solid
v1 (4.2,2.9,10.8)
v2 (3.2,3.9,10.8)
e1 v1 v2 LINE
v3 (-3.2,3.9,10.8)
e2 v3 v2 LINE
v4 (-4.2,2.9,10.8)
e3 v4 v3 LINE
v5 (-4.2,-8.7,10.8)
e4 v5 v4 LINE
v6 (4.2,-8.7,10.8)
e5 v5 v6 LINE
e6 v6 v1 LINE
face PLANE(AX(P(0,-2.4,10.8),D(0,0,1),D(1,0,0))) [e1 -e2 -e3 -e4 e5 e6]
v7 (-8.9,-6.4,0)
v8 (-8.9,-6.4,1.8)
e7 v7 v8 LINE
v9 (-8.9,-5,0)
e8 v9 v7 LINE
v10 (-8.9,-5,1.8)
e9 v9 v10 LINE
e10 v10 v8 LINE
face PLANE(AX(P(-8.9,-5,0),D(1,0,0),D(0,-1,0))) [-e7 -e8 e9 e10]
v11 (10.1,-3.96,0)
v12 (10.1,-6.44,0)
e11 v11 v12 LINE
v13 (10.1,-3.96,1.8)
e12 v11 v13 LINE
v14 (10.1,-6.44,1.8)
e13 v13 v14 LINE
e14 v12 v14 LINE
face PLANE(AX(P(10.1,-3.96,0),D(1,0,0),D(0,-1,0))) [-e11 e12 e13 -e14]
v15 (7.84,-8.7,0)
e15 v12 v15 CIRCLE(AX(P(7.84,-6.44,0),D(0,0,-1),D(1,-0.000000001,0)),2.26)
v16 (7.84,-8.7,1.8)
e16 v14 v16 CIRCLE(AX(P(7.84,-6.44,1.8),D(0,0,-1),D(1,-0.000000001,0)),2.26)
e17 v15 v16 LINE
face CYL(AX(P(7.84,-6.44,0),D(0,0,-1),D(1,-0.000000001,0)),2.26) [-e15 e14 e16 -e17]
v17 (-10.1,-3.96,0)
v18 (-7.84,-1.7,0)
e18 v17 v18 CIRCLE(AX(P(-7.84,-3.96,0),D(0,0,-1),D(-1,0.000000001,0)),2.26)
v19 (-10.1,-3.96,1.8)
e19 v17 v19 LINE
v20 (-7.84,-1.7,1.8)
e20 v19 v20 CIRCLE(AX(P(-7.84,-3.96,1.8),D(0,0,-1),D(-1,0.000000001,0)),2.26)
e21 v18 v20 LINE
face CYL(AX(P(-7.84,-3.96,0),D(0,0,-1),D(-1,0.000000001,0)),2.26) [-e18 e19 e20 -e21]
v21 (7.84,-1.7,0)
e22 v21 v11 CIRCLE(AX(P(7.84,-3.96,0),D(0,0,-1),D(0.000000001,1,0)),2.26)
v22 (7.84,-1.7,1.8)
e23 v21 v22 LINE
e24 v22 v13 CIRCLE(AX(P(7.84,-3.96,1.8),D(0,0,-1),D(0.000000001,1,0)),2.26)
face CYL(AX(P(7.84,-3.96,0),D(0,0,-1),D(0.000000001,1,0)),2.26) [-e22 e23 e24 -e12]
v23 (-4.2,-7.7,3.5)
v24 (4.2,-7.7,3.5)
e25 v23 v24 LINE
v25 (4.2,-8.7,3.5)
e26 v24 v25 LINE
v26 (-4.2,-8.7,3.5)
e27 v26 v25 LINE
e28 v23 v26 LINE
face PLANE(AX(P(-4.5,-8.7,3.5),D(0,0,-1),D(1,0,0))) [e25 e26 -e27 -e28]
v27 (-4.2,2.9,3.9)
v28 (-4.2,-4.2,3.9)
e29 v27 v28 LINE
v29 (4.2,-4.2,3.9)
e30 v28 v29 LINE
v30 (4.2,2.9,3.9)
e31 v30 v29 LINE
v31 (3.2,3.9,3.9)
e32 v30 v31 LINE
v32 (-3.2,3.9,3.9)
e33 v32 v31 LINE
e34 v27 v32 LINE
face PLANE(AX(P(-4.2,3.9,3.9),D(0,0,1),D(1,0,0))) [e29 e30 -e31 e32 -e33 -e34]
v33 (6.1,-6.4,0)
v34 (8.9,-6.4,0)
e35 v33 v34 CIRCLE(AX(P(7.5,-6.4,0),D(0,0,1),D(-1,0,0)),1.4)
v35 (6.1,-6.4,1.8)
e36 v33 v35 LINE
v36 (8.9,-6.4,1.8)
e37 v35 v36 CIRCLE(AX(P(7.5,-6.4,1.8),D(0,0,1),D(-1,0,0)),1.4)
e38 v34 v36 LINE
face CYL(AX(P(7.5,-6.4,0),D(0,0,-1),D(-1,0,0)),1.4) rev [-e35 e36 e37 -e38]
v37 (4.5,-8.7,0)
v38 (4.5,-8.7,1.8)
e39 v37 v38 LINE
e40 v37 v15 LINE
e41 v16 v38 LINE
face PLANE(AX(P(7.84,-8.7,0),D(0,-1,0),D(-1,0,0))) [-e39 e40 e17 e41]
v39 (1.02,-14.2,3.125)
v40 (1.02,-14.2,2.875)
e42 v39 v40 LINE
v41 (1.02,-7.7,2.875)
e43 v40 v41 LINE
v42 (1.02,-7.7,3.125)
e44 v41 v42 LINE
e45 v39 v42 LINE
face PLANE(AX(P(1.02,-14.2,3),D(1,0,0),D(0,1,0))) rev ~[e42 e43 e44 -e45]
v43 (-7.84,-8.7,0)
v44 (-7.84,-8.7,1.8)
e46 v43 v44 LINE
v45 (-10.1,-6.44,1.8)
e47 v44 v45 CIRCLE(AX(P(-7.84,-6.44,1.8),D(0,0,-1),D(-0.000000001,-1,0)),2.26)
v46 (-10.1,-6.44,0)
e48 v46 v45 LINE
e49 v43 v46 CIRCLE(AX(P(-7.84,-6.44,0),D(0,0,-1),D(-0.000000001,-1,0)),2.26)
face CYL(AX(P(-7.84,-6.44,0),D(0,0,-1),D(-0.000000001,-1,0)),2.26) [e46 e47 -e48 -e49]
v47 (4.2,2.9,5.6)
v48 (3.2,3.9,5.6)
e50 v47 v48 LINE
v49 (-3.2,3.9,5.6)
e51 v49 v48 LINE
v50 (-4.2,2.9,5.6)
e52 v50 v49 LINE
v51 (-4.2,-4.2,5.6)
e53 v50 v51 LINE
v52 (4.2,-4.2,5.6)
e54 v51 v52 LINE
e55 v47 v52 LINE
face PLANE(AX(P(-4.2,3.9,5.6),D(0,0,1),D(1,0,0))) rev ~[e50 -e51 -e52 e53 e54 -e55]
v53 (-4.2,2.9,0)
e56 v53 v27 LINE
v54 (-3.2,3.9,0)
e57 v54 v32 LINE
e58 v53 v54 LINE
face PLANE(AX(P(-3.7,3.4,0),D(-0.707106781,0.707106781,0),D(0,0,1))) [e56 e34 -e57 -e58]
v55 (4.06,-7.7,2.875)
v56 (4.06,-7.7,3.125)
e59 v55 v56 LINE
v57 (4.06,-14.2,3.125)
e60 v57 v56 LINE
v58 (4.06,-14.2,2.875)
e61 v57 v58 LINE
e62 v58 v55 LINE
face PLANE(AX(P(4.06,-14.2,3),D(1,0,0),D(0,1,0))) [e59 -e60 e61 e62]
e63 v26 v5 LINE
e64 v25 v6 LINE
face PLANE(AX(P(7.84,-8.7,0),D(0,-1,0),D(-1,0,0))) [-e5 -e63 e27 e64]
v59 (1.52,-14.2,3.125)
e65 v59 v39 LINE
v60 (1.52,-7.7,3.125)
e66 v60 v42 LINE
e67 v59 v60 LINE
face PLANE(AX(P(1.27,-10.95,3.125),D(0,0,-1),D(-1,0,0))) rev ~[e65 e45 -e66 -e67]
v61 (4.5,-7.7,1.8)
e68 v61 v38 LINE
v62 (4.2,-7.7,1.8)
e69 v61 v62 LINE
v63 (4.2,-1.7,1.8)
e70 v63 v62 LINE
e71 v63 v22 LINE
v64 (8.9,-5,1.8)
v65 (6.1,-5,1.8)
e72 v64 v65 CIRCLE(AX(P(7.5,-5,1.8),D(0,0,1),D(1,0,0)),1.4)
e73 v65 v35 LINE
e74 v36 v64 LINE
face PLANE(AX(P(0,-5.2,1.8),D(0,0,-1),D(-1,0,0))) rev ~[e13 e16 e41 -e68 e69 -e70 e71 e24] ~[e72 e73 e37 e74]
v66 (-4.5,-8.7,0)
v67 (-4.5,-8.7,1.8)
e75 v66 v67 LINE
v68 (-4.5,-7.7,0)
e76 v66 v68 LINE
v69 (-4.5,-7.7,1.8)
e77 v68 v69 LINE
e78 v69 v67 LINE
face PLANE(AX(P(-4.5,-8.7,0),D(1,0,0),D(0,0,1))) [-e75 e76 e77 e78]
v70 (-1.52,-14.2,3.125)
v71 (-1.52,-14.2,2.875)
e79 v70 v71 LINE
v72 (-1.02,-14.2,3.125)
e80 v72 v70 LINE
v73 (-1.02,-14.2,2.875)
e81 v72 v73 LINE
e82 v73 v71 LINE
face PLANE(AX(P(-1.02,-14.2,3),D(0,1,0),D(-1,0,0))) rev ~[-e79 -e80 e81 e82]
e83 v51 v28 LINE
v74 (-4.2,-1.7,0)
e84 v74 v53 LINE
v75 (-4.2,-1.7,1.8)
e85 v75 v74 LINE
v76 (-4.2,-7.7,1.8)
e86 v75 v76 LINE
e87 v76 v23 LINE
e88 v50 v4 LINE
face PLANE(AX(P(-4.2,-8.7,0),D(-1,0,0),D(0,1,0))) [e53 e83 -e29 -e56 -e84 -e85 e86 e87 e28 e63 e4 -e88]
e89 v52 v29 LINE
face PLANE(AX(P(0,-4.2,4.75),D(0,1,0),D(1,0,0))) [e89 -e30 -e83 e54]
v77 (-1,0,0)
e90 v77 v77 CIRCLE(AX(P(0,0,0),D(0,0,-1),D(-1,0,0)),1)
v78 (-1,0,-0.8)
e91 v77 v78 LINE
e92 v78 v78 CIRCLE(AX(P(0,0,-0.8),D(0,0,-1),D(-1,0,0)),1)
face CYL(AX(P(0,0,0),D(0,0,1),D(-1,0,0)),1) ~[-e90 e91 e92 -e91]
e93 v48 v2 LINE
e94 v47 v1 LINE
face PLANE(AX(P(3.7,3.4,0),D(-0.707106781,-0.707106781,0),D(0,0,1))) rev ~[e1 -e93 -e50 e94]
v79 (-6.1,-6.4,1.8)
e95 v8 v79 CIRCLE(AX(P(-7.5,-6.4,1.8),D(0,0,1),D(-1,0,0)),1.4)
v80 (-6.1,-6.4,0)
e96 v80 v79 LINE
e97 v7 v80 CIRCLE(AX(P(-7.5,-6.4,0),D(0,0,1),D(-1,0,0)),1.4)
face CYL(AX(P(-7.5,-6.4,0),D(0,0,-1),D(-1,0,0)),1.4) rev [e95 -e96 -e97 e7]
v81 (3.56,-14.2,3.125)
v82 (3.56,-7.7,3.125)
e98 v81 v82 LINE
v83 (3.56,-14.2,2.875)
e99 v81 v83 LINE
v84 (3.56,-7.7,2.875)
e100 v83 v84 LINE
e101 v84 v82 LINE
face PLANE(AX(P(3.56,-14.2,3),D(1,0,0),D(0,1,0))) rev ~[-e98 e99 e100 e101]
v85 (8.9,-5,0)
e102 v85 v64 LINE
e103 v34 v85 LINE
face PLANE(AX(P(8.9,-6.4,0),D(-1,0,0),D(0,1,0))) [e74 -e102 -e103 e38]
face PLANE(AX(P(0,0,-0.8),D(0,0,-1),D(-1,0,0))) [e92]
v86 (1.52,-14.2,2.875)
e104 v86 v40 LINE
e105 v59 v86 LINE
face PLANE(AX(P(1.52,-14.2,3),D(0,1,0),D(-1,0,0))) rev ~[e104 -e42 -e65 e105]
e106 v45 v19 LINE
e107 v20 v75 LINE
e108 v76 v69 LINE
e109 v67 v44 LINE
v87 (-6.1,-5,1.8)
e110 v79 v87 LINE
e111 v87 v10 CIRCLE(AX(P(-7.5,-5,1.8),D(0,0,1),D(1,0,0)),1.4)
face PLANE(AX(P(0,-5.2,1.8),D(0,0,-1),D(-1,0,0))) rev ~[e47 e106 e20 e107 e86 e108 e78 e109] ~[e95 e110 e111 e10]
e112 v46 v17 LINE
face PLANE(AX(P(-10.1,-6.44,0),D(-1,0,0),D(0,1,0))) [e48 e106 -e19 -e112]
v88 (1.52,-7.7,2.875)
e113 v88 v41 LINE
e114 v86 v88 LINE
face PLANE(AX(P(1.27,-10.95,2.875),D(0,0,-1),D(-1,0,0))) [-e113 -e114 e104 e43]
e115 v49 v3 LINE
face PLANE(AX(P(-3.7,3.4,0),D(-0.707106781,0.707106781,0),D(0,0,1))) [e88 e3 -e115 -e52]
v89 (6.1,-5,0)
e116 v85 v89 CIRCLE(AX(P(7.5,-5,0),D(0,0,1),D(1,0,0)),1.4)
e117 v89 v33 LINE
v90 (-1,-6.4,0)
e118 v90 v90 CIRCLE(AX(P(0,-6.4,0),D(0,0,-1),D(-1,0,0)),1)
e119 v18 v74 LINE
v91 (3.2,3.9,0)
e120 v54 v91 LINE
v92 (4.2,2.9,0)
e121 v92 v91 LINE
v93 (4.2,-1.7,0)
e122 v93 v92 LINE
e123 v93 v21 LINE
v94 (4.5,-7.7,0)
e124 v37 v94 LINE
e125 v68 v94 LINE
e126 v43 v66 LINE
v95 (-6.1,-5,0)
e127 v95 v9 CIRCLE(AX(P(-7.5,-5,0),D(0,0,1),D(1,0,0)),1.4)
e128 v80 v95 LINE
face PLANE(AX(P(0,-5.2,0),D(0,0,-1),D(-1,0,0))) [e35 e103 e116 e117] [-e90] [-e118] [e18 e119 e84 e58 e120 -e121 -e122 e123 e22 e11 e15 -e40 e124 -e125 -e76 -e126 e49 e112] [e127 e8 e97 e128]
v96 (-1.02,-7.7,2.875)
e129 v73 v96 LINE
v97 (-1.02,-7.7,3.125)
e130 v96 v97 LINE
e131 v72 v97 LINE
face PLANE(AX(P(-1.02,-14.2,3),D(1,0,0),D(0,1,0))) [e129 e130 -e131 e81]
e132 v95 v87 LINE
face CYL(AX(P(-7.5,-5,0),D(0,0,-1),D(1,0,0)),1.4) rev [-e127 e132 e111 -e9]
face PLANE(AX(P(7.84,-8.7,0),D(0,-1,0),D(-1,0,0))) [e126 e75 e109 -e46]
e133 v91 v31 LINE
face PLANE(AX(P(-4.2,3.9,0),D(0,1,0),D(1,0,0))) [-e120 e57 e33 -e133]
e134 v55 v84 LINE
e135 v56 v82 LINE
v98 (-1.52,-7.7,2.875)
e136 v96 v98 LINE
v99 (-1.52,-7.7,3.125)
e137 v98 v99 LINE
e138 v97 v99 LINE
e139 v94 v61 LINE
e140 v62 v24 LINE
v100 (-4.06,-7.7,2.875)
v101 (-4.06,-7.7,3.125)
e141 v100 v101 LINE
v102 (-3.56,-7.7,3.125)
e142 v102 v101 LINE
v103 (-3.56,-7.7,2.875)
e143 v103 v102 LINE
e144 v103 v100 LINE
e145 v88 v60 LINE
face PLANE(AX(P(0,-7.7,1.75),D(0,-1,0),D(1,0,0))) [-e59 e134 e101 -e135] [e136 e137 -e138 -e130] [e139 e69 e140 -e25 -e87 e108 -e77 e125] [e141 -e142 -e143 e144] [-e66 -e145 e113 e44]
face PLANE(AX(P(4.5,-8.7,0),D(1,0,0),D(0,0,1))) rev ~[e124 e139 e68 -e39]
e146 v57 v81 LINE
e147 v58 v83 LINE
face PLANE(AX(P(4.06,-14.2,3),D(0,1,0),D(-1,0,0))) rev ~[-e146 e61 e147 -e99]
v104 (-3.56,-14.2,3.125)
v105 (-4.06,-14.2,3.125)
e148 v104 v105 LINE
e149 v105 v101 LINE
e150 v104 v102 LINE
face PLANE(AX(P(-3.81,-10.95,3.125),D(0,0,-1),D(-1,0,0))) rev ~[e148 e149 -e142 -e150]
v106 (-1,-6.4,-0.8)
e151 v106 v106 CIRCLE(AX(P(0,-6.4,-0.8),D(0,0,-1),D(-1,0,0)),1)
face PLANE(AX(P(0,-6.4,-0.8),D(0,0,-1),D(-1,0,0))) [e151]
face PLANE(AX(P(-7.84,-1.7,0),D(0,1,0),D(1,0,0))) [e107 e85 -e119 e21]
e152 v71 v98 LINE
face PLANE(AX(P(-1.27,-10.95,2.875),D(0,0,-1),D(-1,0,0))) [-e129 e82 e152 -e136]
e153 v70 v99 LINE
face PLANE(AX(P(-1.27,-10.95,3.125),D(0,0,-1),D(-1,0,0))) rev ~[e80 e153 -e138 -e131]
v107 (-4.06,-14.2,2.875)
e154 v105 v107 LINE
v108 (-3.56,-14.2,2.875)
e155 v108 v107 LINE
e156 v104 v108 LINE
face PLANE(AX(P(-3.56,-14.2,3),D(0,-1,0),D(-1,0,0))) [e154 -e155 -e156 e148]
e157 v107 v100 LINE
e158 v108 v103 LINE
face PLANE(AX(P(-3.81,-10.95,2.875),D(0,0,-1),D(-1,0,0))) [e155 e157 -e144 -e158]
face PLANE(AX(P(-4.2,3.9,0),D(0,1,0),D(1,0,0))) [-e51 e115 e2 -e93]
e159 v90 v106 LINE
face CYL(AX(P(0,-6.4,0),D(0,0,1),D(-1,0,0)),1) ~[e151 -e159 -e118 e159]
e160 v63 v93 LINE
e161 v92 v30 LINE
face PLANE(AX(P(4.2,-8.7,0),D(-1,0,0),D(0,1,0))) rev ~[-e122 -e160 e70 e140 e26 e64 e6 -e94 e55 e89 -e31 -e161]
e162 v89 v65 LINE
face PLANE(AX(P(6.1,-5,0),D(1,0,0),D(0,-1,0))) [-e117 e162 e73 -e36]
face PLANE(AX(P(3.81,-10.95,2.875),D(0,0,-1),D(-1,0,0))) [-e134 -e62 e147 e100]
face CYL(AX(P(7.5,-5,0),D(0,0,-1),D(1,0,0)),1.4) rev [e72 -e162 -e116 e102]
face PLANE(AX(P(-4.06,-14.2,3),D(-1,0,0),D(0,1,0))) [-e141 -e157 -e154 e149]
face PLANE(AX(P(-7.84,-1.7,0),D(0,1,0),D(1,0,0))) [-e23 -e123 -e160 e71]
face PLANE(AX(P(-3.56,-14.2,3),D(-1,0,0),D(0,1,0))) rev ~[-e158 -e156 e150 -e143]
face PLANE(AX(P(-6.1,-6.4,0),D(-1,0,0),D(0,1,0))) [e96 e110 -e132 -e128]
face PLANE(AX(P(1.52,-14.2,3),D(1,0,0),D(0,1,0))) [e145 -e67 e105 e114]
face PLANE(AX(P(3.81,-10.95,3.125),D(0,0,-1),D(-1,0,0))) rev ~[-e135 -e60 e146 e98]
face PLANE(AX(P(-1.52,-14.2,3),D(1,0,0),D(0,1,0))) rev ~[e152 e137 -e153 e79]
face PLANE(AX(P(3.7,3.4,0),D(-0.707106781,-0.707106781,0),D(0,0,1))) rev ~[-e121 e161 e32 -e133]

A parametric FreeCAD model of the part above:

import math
import FreeCAD as App
import Part
import Sketcher
Q = App.Units.Quantity


def edges_at(feature, points):
    """Names of the edges that pass closest to the given points."""
    edges = feature.Shape.Edges
    near = lambda p: min(range(len(edges)), key=lambda i: edges[i].distToShape(Part.Vertex(*p))[0])
    return sorted({f"Edge{near(p) + 1}" for p in points})


def add_polygon(sketch, points):
    """Adds a closed chain of lines whose ends are joined by coincident constraints."""
    first, n = sketch.GeometryCount, len(points)
    for a, b in zip(points, points[1:] + points[:1]):
        sketch.addGeometry(Part.LineSegment(App.Vector(*a, 0), App.Vector(*b, 0)), False)
    for i in range(n):
        sketch.addConstraint(Sketcher.Constraint("Coincident", first + i, 2, first + (i + 1) % n, 1))

doc = App.newDocument("Part")
body = doc.addObject("PartDesign::Body", "Body")

# Sketch on XY plane
sketch1 = body.newObject("Sketcher::SketchObject", "Sketch")
sketch1.AttachmentSupport = (doc.getObject("XY_Plane"), [""])
sketch1.MapMode = "FlatFace"
add_polygon(sketch1, [(-4, 4), (-4, -9), (4, -9), (4, 4)])  # lines 0-3
sketch1.addConstraint([
    Sketcher.Constraint("Vertical", 0),
    Sketcher.Constraint("Horizontal", 1),
    Sketcher.Constraint("Vertical", 2),
    Sketcher.Constraint("Horizontal", 3),
    Sketcher.Constraint("DistanceX", 1, 1, 1, 2, Q("8.4 mm")),
    Sketcher.Constraint("DistanceY", 0, 2, 0, 1, Q("12.6 mm")),
    Sketcher.Constraint("DistanceX", 0, 2, -1, 1, Q("4.2 mm")),
    Sketcher.Constraint("DistanceY", 0, 2, -1, 1, Q("8.7 mm")),
])
pad1 = body.newObject("PartDesign::Pad", "Pad")
pad1.Profile = sketch1
pad1.Length = 10.8
doc.recompute()

chamfer = body.newObject("PartDesign::Chamfer", "Chamfer")
chamfer.Base = (pad1, edges_at(pad1, [(-4.2, 3.9, 5.4), (4.2, 3.9, 5.4)]))
chamfer.Size = 1

# Sketch on XY plane
sketch2 = body.newObject("Sketcher::SketchObject", "Sketch001")
sketch2.AttachmentSupport = (doc.getObject("XY_Plane"), [""])
sketch2.MapMode = "FlatFace"
sketch2.addGeometry([
    Part.LineSegment(App.Vector(7.8, -8.7, 0), App.Vector(-7.8, -8.7, 0)),  # 0
    Part.ArcOfCircle(Part.Circle(App.Vector(-7.8, -6.4, 0), App.Vector(0, 0, 1), 2.3), math.radians(-180), math.radians(-90)),  # 1
    Part.LineSegment(App.Vector(-10.1, -6.4, 0), App.Vector(-10.1, -4, 0)),  # 2
    Part.ArcOfCircle(Part.Circle(App.Vector(-7.8, -4, 0), App.Vector(0, 0, 1), 2.3), math.radians(90), math.radians(180)),  # 3
    Part.LineSegment(App.Vector(-7.8, -1.7, 0), App.Vector(7.8, -1.7, 0)),  # 4
    Part.ArcOfCircle(Part.Circle(App.Vector(7.8, -4, 0), App.Vector(0, 0, 1), 2.3), math.radians(0), math.radians(90)),  # 5
    Part.LineSegment(App.Vector(10.1, -4, 0), App.Vector(10.1, -6.4, 0)),  # 6
    Part.ArcOfCircle(Part.Circle(App.Vector(7.8, -6.4, 0), App.Vector(0, 0, 1), 2.3), math.radians(-90), math.radians(0)),  # 7
    Part.ArcOfCircle(Part.Circle(App.Vector(7.5, -5, 0), App.Vector(0, 0, 1), 1.4), math.radians(0), math.radians(180)),  # 8
    Part.LineSegment(App.Vector(6.1, -5, 0), App.Vector(6.1, -6.4, 0)),  # 9
    Part.ArcOfCircle(Part.Circle(App.Vector(7.5, -6.4, 0), App.Vector(0, 0, 1), 1.4), math.radians(180), math.radians(360)),  # 10
    Part.LineSegment(App.Vector(8.9, -6.4, 0), App.Vector(8.9, -5, 0)),  # 11
    Part.ArcOfCircle(Part.Circle(App.Vector(-7.5, -5, 0), App.Vector(0, 0, 1), 1.4), math.radians(0), math.radians(180)),  # 12
    Part.LineSegment(App.Vector(-8.9, -5, 0), App.Vector(-8.9, -6.4, 0)),  # 13
    Part.ArcOfCircle(Part.Circle(App.Vector(-7.5, -6.4, 0), App.Vector(0, 0, 1), 1.4), math.radians(180), math.radians(360)),  # 14
    Part.LineSegment(App.Vector(-6.1, -6.4, 0), App.Vector(-6.1, -5, 0)),  # 15
], False)
sketch2.addConstraint([
    Sketcher.Constraint("Tangent", 0, 2, 1, 2),
    Sketcher.Constraint("Tangent", 1, 1, 2, 1),
    Sketcher.Constraint("Tangent", 2, 2, 3, 2),
    Sketcher.Constraint("Tangent", 3, 1, 4, 1),
    Sketcher.Constraint("Tangent", 4, 2, 5, 2),
    Sketcher.Constraint("Tangent", 5, 1, 6, 1),
    Sketcher.Constraint("Tangent", 6, 2, 7, 2),
    Sketcher.Constraint("Tangent", 7, 1, 0, 1),
    Sketcher.Constraint("Tangent", 8, 2, 9, 1),
    Sketcher.Constraint("Tangent", 9, 2, 10, 1),
    Sketcher.Constraint("Tangent", 10, 2, 11, 1),
    Sketcher.Constraint("Tangent", 11, 2, 8, 1),
    Sketcher.Constraint("Tangent", 12, 2, 13, 1),
    Sketcher.Constraint("Tangent", 13, 2, 14, 1),
    Sketcher.Constraint("Tangent", 14, 2, 15, 1),
    Sketcher.Constraint("Tangent", 15, 2, 12, 1),
    Sketcher.Constraint("Horizontal", 0),
    Sketcher.Constraint("Vertical", 2),
    Sketcher.Constraint("Horizontal", 4),
    Sketcher.Constraint("Vertical", 6),
    Sketcher.Constraint("Vertical", 9),
    Sketcher.Constraint("Vertical", 11),
    Sketcher.Constraint("Vertical", 13),
    Sketcher.Constraint("Vertical", 15),
    Sketcher.Constraint("Equal", 1, 3),
    Sketcher.Constraint("Equal", 3, 5),
    Sketcher.Constraint("Equal", 5, 7),
    Sketcher.Constraint("Equal", 10, 12),
    Sketcher.Constraint("Symmetric", 8, 3, 12, 3, -2),
    Sketcher.Constraint("Horizontal", 10, 3, 14, 3),
    Sketcher.Constraint("Radius", 8, Q("1.4 mm")),
    Sketcher.Constraint("Radius", 1, Q("2.26 mm")),
    Sketcher.Constraint("DistanceY", 9, 2, 9, 1, Q("1.4 mm")),
    Sketcher.Constraint("DistanceY", 8, 3, -1, 1, Q("5 mm")),
    Sketcher.Constraint("DistanceX", 12, 3, 8, 3, Q("15 mm")),
    Sketcher.Constraint("DistanceX", 0, 2, 0, 1, Q("15.68 mm")),
    Sketcher.Constraint("DistanceY", 2, 1, 2, 2, Q("2.48 mm")),
    Sketcher.Constraint("DistanceY", 0, 2, -1, 1, Q("8.7 mm")),
    Sketcher.Constraint("DistanceX", 1, 1, -1, 1, Q("10.1 mm")),
])
pad2 = body.newObject("PartDesign::Pad", "Pad001")
pad2.Profile = sketch2
pad2.Length = 1.8

# Sketch on XZ plane
sketch3 = body.newObject("Sketcher::SketchObject", "Sketch002")
sketch3.AttachmentSupport = (doc.getObject("XZ_Plane"), [""])
sketch3.MapMode = "FlatFace"
sketch3.AttachmentOffset = App.Placement(App.Vector(0, 0, -3.9), App.Rotation())
add_polygon(sketch3, [(-4.2, 3.9), (-4.2, 5.6), (4.2, 5.6), (4.2, 3.9)])  # lines 0-3
sketch3.addConstraint([
    Sketcher.Constraint("Vertical", 0),
    Sketcher.Constraint("Horizontal", 1),
    Sketcher.Constraint("Vertical", 2),
    Sketcher.Constraint("Horizontal", 3),
    Sketcher.Constraint("DistanceX", 1, 1, 1, 2, Q("8.4 mm")),
    Sketcher.Constraint("DistanceY", 0, 1, 0, 2, Q("1.7 mm")),
    Sketcher.Constraint("DistanceX", 0, 2, -1, 1, Q("4.2 mm")),
    Sketcher.Constraint("DistanceY", -1, 1, 0, 2, Q("5.6 mm")),
])
pocket1 = body.newObject("PartDesign::Pocket", "Pocket")
pocket1.Profile = sketch3
pocket1.Length = 8.1
pocket1.Reversed = True

# Sketch on XY plane
sketch4 = body.newObject("Sketcher::SketchObject", "Sketch003")
sketch4.AttachmentSupport = (doc.getObject("XY_Plane"), [""])
sketch4.MapMode = "FlatFace"
sketch4.addGeometry([
    Part.Circle(App.Vector(0, 0, 0), App.Vector(0, 0, 1), 1),
    Part.Circle(App.Vector(0, -6.4, 0), App.Vector(0, 0, 1), 1),
], False)
sketch4.addConstraint([
    Sketcher.Constraint("Coincident", 0, 3, -1, 1),
    Sketcher.Constraint("Equal", 0, 1),
    Sketcher.Constraint("PointOnObject", 1, 3, -2),
    Sketcher.Constraint("Diameter", 0, Q("2 mm")),
    Sketcher.Constraint("DistanceY", 1, 3, -1, 1, Q("6.4 mm")),
])
pad3 = body.newObject("PartDesign::Pad", "Pad002")
pad3.Profile = sketch4
pad3.Length = 0.8
pad3.Reversed = True

# Sketch on XZ plane
sketch5 = body.newObject("Sketcher::SketchObject", "Sketch004")
sketch5.AttachmentSupport = (doc.getObject("XZ_Plane"), [""])
sketch5.MapMode = "FlatFace"
sketch5.AttachmentOffset = App.Placement(App.Vector(0, 0, 8.7), App.Rotation())
add_polygon(sketch5, [(-4.5, 3.5), (-4.5, 0), (4.5, 0), (4.5, 3.5)])  # lines 0-3
sketch5.addConstraint([
    Sketcher.Constraint("Vertical", 0),
    Sketcher.Constraint("Horizontal", 1),
    Sketcher.Constraint("Vertical", 2),
    Sketcher.Constraint("Horizontal", 3),
    Sketcher.Constraint("Symmetric", 0, 2, 1, 2, -1, 1),
    Sketcher.Constraint("DistanceX", 1, 1, 1, 2, Q("9 mm")),
    Sketcher.Constraint("DistanceY", 0, 2, 0, 1, Q("3.5 mm")),
])
pocket2 = body.newObject("PartDesign::Pocket", "Pocket001")
pocket2.Profile = sketch5
pocket2.Length = 1

# Sketch on XY plane
sketch6 = body.newObject("Sketcher::SketchObject", "Sketch005")
sketch6.AttachmentSupport = (doc.getObject("XY_Plane"), [""])
sketch6.MapMode = "FlatFace"
sketch6.AttachmentOffset = App.Placement(App.Vector(0, 0, 3), App.Rotation())
add_polygon(sketch6, [(4.06, -7.7), (4.06, -14.2), (3.56, -14.2), (3.56, -7.7)])  # lines 0-3
add_polygon(sketch6, [(1.52, -7.7), (1.52, -14.2), (1.02, -14.2), (1.02, -7.7)])  # lines 4-7
add_polygon(sketch6, [(-1.02, -7.7), (-1.02, -14.2), (-1.52, -14.2), (-1.52, -7.7)])  # lines 8-11
add_polygon(sketch6, [(-3.56, -7.7), (-3.56, -14.2), (-4.06, -14.2), (-4.06, -7.7)])  # lines 12-15
sketch6.addConstraint([
    Sketcher.Constraint("Vertical", 0),
    Sketcher.Constraint("Horizontal", 1),
    Sketcher.Constraint("Vertical", 2),
    Sketcher.Constraint("Horizontal", 3),
    Sketcher.Constraint("Vertical", 4),
    Sketcher.Constraint("Horizontal", 5),
    Sketcher.Constraint("Vertical", 6),
    Sketcher.Constraint("Horizontal", 7),
    Sketcher.Constraint("Vertical", 8),
    Sketcher.Constraint("Horizontal", 9),
    Sketcher.Constraint("Vertical", 10),
    Sketcher.Constraint("Horizontal", 11),
    Sketcher.Constraint("Vertical", 12),
    Sketcher.Constraint("Horizontal", 13),
    Sketcher.Constraint("Vertical", 14),
    Sketcher.Constraint("Horizontal", 15),
    Sketcher.Constraint("Symmetric", 5, 2, 8, 2, -2),
    Sketcher.Constraint("Symmetric", 7, 2, 10, 2, -2),
    Sketcher.Constraint("Symmetric", 1, 2, 12, 2, -2),
    Sketcher.Constraint("Symmetric", 3, 2, 14, 2, -2),
    Sketcher.Constraint("Horizontal", 1, 2, 4, 2),
    Sketcher.Constraint("Horizontal", 3, 2, 6, 2),
    Sketcher.Constraint("Equal", 3, 5),
    Sketcher.Constraint("DistanceX", 1, 2, 1, 1, Q("0.5 mm")),
    Sketcher.Constraint("DistanceY", 0, 2, 0, 1, Q("6.5 mm")),
    Sketcher.Constraint("DistanceY", 0, 2, -1, 1, Q("14.2 mm")),
    Sketcher.Constraint("DistanceX", -1, 1, 0, 2, Q("4.06 mm")),
    Sketcher.Constraint("DistanceX", -1, 1, 4, 2, Q("1.52 mm")),
])
pad4 = body.newObject("PartDesign::Pad", "Pad003")
pad4.Profile = sketch6
pad4.Length = 0.25
pad4.Midplane = True

doc.recompute()
